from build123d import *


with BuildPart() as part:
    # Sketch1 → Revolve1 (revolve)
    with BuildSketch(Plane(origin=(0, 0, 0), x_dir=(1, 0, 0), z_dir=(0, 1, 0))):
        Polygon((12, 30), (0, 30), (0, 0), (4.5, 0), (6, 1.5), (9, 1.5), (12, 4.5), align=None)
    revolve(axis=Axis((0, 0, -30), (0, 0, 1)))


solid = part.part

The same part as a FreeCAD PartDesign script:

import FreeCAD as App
import Part
import Sketcher
from FreeCAD import Vector
Q = App.Units.Quantity

doc = App.newDocument("Part")
params = doc.addObject("Spreadsheet::Sheet", "Params")
for row, (alias, value) in enumerate([
    ("sketch1_width", "12 mm"),
    ("sketch1_width2", "3 mm"),
    ("sketch1_height", "30 mm"),
    ("sketch1_width3", "4.5 mm"),
    ("revolution_angle", "360 deg"),
], start=1):
    params.set(f"A{row}", alias)
    params.set(f"B{row}", "=" + value)
    params.setAlias(f"B{row}", alias)

body = doc.addObject("PartDesign::Body", "Body")

# Sketch on XZ plane
sketch1 = doc.addObject("Sketcher::SketchObject", "Sketch")
body.addObject(sketch1)
sketch1.AttachmentSupport = (doc.XZ_Plane, [""])
sketch1.MapMode = "FlatFace"
sketch1.addGeometry([
    Part.LineSegment(Vector(12, -30, 0), Vector(0, -30, 0)),  # 0
    Part.LineSegment(Vector(0, -30, 0), Vector(0, 0, 0)),  # 1
    Part.LineSegment(Vector(0, 0, 0), Vector(4.5, 0, 0)),  # 2
    Part.LineSegment(Vector(4.5, 0, 0), Vector(6, -1.5, 0)),  # 3
    Part.LineSegment(Vector(6, -1.5, 0), Vector(9, -1.5, 0)),  # 4
    Part.LineSegment(Vector(9, -1.5, 0), Vector(12, -4.5, 0)),  # 5
    Part.LineSegment(Vector(12, -4.5, 0), Vector(12, -30, 0)),  # 6
], False)
sketch1.addConstraint([
    Sketcher.Constraint("Coincident", 0, 2, 1, 1),
    Sketcher.Constraint("Coincident", 1, 2, 2, 1),
    Sketcher.Constraint("Coincident", 2, 2, 3, 1),
    Sketcher.Constraint("Coincident", 3, 2, 4, 1),
    Sketcher.Constraint("Coincident", 4, 2, 5, 1),
    Sketcher.Constraint("Coincident", 5, 2, 6, 1),
    Sketcher.Constraint("Coincident", 6, 2, 0, 1),
    Sketcher.Constraint("Horizontal", 0),
    Sketcher.Constraint("Vertical", 1),
    Sketcher.Constraint("Horizontal", 2),
    Sketcher.Constraint("Horizontal", 4),
    Sketcher.Constraint("Vertical", 6),
    Sketcher.Constraint("Coincident", 1, 2, -1, 1),
    Sketcher.Constraint("Parallel", 3, 5),
    Sketcher.Constraint("DistanceX", 0, 2, 0, 1, 12.0),
    Sketcher.Constraint("DistanceX", 4, 1, 4, 2, 3.0),
    Sketcher.Constraint("DistanceY", 1, 1, 1, 2, 30.0),
    Sketcher.Constraint("Angle", 3, Q("-45 deg")),
    Sketcher.Constraint("DistanceX", 2, 1, 2, 2, 4.5),
    Sketcher.Constraint("DistanceX", -1, 1, 3, 2, 6.0),
])
sketch1.setExpression("Constraints[14]", "Params.sketch1_width")
sketch1.setExpression("Constraints[15]", "Params.sketch1_width2")
sketch1.setExpression("Constraints[16]", "Params.sketch1_height")
sketch1.setExpression("Constraints[18]", "Params.sketch1_width3")
revolution = doc.addObject("PartDesign::Revolution", "Revolution")
body.addObject(revolution)
revolution.Profile = sketch1
revolution.ReferenceAxis = (sketch1, ["V_Axis"])
revolution.setExpression("Angle", "Params.revolution_angle")

doc.recompute()
